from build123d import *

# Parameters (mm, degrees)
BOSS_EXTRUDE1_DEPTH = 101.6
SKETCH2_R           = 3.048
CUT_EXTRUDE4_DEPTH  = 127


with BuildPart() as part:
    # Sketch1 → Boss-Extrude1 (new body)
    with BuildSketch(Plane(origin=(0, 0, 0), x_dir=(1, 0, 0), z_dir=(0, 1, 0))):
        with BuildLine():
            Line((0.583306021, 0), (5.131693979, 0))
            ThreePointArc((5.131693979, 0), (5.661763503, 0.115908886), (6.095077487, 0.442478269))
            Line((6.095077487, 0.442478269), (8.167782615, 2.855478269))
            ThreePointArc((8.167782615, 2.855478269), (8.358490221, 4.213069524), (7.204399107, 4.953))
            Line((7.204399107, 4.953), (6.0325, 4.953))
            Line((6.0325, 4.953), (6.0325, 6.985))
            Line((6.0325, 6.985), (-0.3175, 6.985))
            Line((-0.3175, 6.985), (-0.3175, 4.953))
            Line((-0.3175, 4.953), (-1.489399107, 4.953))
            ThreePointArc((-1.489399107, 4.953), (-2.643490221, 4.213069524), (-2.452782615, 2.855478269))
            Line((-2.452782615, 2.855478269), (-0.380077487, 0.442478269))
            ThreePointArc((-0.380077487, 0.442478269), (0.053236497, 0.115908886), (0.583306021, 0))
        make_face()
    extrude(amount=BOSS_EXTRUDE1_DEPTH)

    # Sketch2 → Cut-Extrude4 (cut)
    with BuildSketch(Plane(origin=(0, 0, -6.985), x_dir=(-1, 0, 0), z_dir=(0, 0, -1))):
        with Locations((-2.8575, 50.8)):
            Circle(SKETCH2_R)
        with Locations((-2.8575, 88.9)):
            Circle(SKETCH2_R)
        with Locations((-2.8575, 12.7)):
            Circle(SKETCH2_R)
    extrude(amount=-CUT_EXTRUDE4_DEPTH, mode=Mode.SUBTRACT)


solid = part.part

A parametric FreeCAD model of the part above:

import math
import FreeCAD as App
import Part
import Sketcher
from FreeCAD import Vector
Q = App.Units.Quantity

doc = App.newDocument("Part")
body = doc.addObject("PartDesign::Body", "Body")

# Sketch on XZ plane
sketch1 = doc.addObject("Sketcher::SketchObject", "Sketch")
body.addObject(sketch1)
sketch1.AttachmentSupport = (doc.XZ_Plane, [""])
sketch1.MapMode = "FlatFace"
sketch1.addGeometry([
    Part.LineSegment(Vector(0.6, 0, 0), Vector(5.1, 0, 0)),  # 0
    Part.ArcOfCircle(Part.Circle(Vector(5.1, -1.3, 0), Vector(0, 0, 1), 1.3), math.radians(41), math.radians(90)),  # 1
    Part.LineSegment(Vector(6.1, -0.4, 0), Vector(8.2, -2.9, 0)),  # 2
    Part.ArcOfCircle(Part.Circle(Vector(7.2, -3.7, 0), Vector(0, 0, 1), 1.3), math.radians(-90), math.radians(41)),  # 3
    Part.LineSegment(Vector(7.2, -5, 0), Vector(6, -5, 0)),  # 4
    Part.LineSegment(Vector(6, -5, 0), Vector(6, -7, 0)),  # 5
    Part.LineSegment(Vector(6, -7, 0), Vector(-0.3, -7, 0)),  # 6
    Part.LineSegment(Vector(-0.3, -7, 0), Vector(-0.3, -5, 0)),  # 7
    Part.LineSegment(Vector(-0.3, -5, 0), Vector(-1.5, -5, 0)),  # 8
    Part.ArcOfCircle(Part.Circle(Vector(-1.5, -3.7, 0), Vector(0, 0, 1), 1.3), math.radians(139), math.radians(270)),  # 9
    Part.LineSegment(Vector(-2.5, -2.9, 0), Vector(-0.4, -0.4, 0)),  # 10
    Part.ArcOfCircle(Part.Circle(Vector(0.6, -1.3, 0), Vector(0, 0, 1), 1.3), math.radians(90), math.radians(139)),  # 11
], False)
sketch1.addConstraint([
    Sketcher.Constraint("Tangent", 0, 2, 1, 2),
    Sketcher.Constraint("Tangent", 1, 1, 2, 1),
    Sketcher.Constraint("Tangent", 2, 2, 3, 2),
    Sketcher.Constraint("Tangent", 3, 1, 4, 1),
    Sketcher.Constraint("Coincident", 4, 2, 5, 1),
    Sketcher.Constraint("Coincident", 5, 2, 6, 1),
    Sketcher.Constraint("Coincident", 6, 2, 7, 1),
    Sketcher.Constraint("Coincident", 7, 2, 8, 1),
    Sketcher.Constraint("Tangent", 8, 2, 9, 2),
    Sketcher.Constraint("Tangent", 9, 1, 10, 1),
    Sketcher.Constraint("Tangent", 10, 2, 11, 2),
    Sketcher.Constraint("Tangent", 11, 1, 0, 1),
    Sketcher.Constraint("Horizontal", 0),
    Sketcher.Constraint("Horizontal", 4),
    Sketcher.Constraint("Vertical", 5),
    Sketcher.Constraint("Horizontal", 6),
    Sketcher.Constraint("Vertical", 7),
    Sketcher.Constraint("Horizontal", 8),
    Sketcher.Constraint("Equal", 1, 3),
    Sketcher.Constraint("Equal", 3, 9),
    Sketcher.Constraint("Equal", 9, 11),
    Sketcher.Constraint("PointOnObject", 0, 2, -1),
    Sketcher.Constraint("Horizontal", 3, 3, 9, 3),
    Sketcher.Constraint("Horizontal", 2, 2, 9, 1),
    Sketcher.Constraint("Equal", 4, 8),
    Sketcher.Constraint("Radius", 1, Q("0.05 in")),
    Sketcher.Constraint("DistanceX", 6, 2, 6, 1, Q("0.25 in")),
    Sketcher.Constraint("DistanceY", 5, 2, 5, 1, Q("0.08 in")),
    Sketcher.Constraint("DistanceY", 3, 3, -1, 1, Q("0.145 in")),
    Sketcher.Constraint("DistanceX", 4, 2, 4, 1, Q("1.171899 mm")),
    Sketcher.Constraint("DistanceX", -1, 1, 4, 2, Q("0.2375 in")),
    Sketcher.Constraint("DistanceX", 0, 1, 0, 2, Q("4.548388 mm")),
])
pad1 = doc.addObject("PartDesign::Pad", "Pad")
body.addObject(pad1)
pad1.Profile = sketch1
pad1.Length = Q("4 in")
pad1.Reversed = True

# Sketch on XY plane
sketch2 = doc.addObject("Sketcher::SketchObject", "Sketch001")
body.addObject(sketch2)
sketch2.AttachmentSupport = (doc.XY_Plane, [""])
sketch2.MapMode = "FlatFace"
sketch2.AttachmentOffset = App.Placement(Vector(0, 0, -0.275 * 25.4), App.Rotation())
sketch2.addGeometry([
    Part.Circle(Vector(2.9, 50.8, 0), Vector(0, 0, 1), 3),
    Part.Circle(Vector(2.9, 88.9, 0), Vector(0, 0, 1), 3),
    Part.Circle(Vector(2.9, 12.7, 0), Vector(0, 0, 1), 3),
], False)
sketch2.addConstraint([
    Sketcher.Constraint("Equal", 0, 1),
    Sketcher.Constraint("Equal", 1, 2),
    Sketcher.Constraint("Vertical", 0, 3, 1, 3),
    Sketcher.Constraint("Vertical", 1, 3, 2, 3),
    Sketcher.Constraint("Diameter", 0, Q("0.24 in")),
    Sketcher.Constraint("DistanceY", -1, 1, 0, 3, Q("2 in")),
    Sketcher.Constraint("DistanceY", 2, 3, 1, 3, Q("3 in")),
    Sketcher.Constraint("DistanceY", -1, 1, 1, 3, Q("3.5 in")),
    Sketcher.Constraint("DistanceX", -1, 1, 0, 3, Q("0.1125 in")),
])
pocket1 = doc.addObject("PartDesign::Pocket", "Pocket")
body.addObject(pocket1)
pocket1.Profile = sketch2
pocket1.Length = Q("5 in")
pocket1.Reversed = True

doc.recompute()
